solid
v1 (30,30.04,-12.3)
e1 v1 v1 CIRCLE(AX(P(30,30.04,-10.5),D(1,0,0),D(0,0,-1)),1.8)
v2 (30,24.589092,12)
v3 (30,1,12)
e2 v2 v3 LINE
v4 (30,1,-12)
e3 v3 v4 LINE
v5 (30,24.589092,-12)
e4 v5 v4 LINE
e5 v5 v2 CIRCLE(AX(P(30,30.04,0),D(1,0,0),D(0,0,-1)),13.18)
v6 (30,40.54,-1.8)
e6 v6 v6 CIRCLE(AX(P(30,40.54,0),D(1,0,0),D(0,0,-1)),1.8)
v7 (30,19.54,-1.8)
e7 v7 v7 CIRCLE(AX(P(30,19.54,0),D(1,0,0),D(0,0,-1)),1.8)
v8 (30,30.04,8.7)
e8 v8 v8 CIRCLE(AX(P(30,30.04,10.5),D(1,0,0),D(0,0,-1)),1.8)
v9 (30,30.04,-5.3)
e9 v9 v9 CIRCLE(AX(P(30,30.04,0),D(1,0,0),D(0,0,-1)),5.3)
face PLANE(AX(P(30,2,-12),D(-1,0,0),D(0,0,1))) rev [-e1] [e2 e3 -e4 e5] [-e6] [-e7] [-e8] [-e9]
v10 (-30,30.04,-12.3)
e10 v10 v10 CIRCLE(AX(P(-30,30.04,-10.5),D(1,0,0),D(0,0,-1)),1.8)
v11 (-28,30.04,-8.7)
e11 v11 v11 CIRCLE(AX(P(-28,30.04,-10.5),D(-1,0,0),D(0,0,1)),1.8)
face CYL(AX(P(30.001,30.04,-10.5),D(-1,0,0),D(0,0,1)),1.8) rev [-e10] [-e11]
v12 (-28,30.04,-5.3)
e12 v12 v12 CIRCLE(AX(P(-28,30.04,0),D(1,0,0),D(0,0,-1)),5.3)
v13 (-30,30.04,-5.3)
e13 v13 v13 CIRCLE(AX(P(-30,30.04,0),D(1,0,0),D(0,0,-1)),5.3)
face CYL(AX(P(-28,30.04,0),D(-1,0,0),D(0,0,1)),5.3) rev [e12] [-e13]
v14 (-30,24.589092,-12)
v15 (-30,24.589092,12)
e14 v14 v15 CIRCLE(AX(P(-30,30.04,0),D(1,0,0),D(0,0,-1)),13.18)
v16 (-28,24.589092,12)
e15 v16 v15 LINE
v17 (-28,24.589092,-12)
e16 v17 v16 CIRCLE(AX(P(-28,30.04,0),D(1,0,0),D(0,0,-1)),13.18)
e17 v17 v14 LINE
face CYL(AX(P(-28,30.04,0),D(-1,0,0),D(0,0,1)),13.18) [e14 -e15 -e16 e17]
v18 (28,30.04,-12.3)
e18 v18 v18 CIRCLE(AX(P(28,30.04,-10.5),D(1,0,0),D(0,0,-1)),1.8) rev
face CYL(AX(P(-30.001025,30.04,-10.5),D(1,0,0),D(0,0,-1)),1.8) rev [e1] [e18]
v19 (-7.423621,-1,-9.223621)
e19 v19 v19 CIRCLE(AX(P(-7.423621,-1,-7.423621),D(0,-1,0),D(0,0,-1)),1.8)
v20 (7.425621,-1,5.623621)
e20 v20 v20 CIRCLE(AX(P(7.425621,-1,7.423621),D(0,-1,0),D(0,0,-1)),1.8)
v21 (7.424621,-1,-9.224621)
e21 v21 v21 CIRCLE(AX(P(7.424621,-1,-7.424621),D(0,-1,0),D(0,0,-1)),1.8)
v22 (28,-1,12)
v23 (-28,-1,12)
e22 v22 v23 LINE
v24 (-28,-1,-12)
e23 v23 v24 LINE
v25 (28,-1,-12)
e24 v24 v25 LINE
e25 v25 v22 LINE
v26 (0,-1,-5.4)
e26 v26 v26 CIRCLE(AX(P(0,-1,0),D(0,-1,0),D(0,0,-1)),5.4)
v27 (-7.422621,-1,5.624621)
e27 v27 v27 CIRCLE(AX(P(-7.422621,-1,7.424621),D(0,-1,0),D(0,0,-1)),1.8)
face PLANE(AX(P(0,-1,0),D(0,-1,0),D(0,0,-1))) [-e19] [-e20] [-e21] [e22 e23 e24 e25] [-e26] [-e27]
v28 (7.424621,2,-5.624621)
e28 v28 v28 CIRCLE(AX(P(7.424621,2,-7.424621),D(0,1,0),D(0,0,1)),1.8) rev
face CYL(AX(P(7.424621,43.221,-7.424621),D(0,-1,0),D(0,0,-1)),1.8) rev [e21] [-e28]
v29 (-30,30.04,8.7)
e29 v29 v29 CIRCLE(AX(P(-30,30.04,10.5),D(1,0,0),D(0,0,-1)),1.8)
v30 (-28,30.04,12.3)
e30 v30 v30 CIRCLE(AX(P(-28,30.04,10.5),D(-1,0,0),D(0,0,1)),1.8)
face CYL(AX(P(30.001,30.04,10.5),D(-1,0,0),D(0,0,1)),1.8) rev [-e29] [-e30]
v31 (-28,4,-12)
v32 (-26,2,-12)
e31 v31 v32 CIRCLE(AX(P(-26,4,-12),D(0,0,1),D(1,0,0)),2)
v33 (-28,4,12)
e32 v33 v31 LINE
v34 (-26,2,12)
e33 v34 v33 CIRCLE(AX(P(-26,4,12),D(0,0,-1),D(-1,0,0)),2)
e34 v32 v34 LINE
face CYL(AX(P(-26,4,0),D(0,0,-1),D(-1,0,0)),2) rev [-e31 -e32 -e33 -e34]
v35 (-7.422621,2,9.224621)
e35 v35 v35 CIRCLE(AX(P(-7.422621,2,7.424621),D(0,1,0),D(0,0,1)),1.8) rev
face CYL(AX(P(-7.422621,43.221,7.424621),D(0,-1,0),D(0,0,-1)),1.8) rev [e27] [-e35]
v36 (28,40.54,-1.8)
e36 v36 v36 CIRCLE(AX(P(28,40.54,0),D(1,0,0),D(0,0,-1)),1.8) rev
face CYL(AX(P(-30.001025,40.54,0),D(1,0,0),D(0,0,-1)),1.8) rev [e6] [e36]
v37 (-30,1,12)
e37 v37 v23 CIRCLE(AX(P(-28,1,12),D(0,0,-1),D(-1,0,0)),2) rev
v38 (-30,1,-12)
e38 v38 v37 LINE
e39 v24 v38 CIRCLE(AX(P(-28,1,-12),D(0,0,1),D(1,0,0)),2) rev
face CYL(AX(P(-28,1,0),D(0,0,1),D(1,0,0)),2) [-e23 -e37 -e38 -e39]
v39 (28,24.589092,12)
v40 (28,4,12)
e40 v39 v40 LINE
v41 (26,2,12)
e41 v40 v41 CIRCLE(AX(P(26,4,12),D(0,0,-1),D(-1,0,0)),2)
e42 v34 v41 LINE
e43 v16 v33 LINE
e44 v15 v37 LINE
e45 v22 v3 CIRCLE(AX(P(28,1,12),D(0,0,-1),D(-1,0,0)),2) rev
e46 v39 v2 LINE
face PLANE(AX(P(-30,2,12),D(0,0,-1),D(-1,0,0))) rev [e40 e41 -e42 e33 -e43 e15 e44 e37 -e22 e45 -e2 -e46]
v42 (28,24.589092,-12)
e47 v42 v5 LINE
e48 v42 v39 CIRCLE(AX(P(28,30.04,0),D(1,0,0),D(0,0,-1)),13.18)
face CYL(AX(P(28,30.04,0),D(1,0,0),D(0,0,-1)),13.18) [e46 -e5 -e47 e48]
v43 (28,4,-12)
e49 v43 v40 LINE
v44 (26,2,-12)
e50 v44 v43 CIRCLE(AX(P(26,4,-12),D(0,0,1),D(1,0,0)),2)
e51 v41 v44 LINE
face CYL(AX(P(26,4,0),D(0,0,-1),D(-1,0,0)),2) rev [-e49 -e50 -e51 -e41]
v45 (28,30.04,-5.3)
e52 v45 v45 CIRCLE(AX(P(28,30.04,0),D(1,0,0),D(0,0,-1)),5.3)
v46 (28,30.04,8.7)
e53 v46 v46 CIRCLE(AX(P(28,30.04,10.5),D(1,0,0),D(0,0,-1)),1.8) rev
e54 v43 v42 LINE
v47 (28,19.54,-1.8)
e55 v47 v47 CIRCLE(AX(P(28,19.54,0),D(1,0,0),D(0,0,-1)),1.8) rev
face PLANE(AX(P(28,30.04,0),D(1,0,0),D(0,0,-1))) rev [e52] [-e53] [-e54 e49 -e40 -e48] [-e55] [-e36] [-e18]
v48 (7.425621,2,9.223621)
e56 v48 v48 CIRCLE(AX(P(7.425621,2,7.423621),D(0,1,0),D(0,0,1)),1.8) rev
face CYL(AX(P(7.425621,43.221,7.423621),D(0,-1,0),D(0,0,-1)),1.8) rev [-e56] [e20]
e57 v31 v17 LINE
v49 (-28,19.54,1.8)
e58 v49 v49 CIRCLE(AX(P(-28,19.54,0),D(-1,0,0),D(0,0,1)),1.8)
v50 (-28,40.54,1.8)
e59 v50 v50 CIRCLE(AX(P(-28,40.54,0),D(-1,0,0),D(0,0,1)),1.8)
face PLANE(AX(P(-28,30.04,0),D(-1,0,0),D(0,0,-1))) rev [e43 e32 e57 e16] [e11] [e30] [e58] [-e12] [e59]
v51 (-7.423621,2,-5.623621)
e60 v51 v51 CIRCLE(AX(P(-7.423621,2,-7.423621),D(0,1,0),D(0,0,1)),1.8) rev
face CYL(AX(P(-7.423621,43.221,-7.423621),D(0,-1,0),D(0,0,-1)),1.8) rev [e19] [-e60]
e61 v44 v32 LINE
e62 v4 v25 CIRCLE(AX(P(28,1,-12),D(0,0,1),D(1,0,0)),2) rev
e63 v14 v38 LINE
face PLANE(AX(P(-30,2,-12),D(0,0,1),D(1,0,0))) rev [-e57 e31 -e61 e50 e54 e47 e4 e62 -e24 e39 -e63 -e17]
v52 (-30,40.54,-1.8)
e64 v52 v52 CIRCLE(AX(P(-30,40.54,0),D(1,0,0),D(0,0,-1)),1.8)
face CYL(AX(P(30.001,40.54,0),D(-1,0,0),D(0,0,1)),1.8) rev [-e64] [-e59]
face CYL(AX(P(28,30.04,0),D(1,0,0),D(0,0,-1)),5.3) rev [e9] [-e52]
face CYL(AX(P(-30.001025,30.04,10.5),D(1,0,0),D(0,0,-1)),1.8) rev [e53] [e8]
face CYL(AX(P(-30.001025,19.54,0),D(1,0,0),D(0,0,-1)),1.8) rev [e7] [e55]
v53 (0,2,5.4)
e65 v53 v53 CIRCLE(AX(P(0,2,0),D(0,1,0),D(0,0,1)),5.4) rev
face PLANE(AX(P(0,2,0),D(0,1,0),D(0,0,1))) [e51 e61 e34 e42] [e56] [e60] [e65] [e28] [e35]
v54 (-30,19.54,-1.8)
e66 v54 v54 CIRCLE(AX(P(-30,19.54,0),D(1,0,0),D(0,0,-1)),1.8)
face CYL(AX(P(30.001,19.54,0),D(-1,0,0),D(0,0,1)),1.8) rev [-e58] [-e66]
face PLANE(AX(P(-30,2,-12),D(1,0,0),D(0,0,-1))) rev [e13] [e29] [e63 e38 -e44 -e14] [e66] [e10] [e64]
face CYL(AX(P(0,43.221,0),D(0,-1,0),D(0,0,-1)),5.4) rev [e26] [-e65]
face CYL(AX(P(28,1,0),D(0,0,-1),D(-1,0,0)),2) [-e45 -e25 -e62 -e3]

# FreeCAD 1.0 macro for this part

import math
import FreeCAD as App
import Part
import Sketcher


def edges_at(feature, points):
    """Names of the edges that pass closest to the given points."""
    edges = feature.Shape.Edges
    near = lambda p: min(range(len(edges)), key=lambda i: edges[i].distToShape(Part.Vertex(*p))[0])
    return sorted({f"Edge{near(p) + 1}" for p in points})

doc = App.newDocument("Part")
body = doc.addObject("PartDesign::Body", "Body")

# Sketch on XZ plane
sketch1 = doc.addObject("Sketcher::SketchObject", "Sketch")
body.addObject(sketch1)
sketch1.AttachmentSupport = (doc.XZ_Plane, [""])
sketch1.MapMode = "FlatFace"
sketch1.addGeometry([
    Part.LineSegment(App.Vector(-30, -12, 0), App.Vector(-30, 12, 0)),
    Part.LineSegment(App.Vector(-30, 12, 0), App.Vector(30, 12, 0)),
    Part.LineSegment(App.Vector(30, 12, 0), App.Vector(30, -12, 0)),
    Part.LineSegment(App.Vector(30, -12, 0), App.Vector(-30, -12, 0)),
], False)
sketch1.addConstraint([
    Sketcher.Constraint("Coincident", 0, 2, 1, 1),
    Sketcher.Constraint("Coincident", 1, 2, 2, 1),
    Sketcher.Constraint("Coincident", 2, 2, 3, 1),
    Sketcher.Constraint("Coincident", 3, 2, 0, 1),
    Sketcher.Constraint("Vertical", 0),
    Sketcher.Constraint("Horizontal", 1),
    Sketcher.Constraint("Vertical", 2),
    Sketcher.Constraint("Horizontal", 3),
    Sketcher.Constraint("Symmetric", 0, 2, 2, 2, -1, 1),
    Sketcher.Constraint("DistanceX", 1, 1, 1, 2, 60.0),
    Sketcher.Constraint("DistanceY", 0, 1, 0, 2, 24.0),
])
pad1 = doc.addObject("PartDesign::Pad", "Pad")
body.addObject(pad1)
pad1.Profile = sketch1
pad1.Length = 2
pad1.Reversed = True

# Sketch on YZ plane
sketch2 = doc.addObject("Sketcher::SketchObject", "Sketch001")
body.addObject(sketch2)
sketch2.AttachmentSupport = (doc.YZ_Plane, [""])
sketch2.MapMode = "FlatFace"
sketch2.AttachmentOffset = App.Placement(App.Vector(0, 0, 30), App.Rotation())
sketch2.addGeometry([
    Part.LineSegment(App.Vector(2, 12, 0), App.Vector(2, -12, 0)),  # 0
    Part.LineSegment(App.Vector(2, -12, 0), App.Vector(25, -12, 0)),  # 1
    Part.ArcOfCircle(Part.Circle(App.Vector(30, 0, 0), App.Vector(0, 0, 1), 13), math.radians(-114), math.radians(114)),  # 2
    Part.LineSegment(App.Vector(25, 12, 0), App.Vector(2, 12, 0)),  # 3
    Part.Circle(App.Vector(30, 0, 0), App.Vector(0, 0, 1), 5),  # 4
], False)
sketch2.addConstraint([
    Sketcher.Constraint("Coincident", 0, 2, 1, 1),
    Sketcher.Constraint("Coincident", 1, 2, 2, 1),
    Sketcher.Constraint("Coincident", 2, 2, 3, 1),
    Sketcher.Constraint("Coincident", 3, 2, 0, 1),
    Sketcher.Constraint("Vertical", 0),
    Sketcher.Constraint("Horizontal", 1),
    Sketcher.Constraint("Horizontal", 3),
    Sketcher.Constraint("Coincident", 4, 3, 2, 3),
    Sketcher.Constraint("Symmetric", 1, 2, 2, 2, -1),
    Sketcher.Constraint("Diameter", 4, 10.6),
    Sketcher.Constraint("DistanceY", 0, 2, 0, 1, 24.0),
    Sketcher.Constraint("Radius", 2, 13.18),
    Sketcher.Constraint("DistanceX", -1, 1, 0, 2, 2.0),
    Sketcher.Constraint("DistanceX", -1, 1, 2, 3, 30.04),
])
pad2 = doc.addObject("PartDesign::Pad", "Pad001")
body.addObject(pad2)
pad2.Profile = sketch2
pad2.Length = 2
pad2.Reversed = True

# Sketch on YZ plane
sketch3 = doc.addObject("Sketcher::SketchObject", "Sketch002")
body.addObject(sketch3)
sketch3.AttachmentSupport = (doc.YZ_Plane, [""])
sketch3.MapMode = "FlatFace"
sketch3.AttachmentOffset = App.Placement(App.Vector(0, 0, 30), App.Rotation())
sketch3.addGeometry([
    Part.Circle(App.Vector(40.5, 0, 0), App.Vector(0, 0, 1), 1.8),
    Part.Circle(App.Vector(30, -10.5, 0), App.Vector(0, 0, 1), 1.8),
    Part.Circle(App.Vector(19.5, 0, 0), App.Vector(0, 0, 1), 1.8),
    Part.Circle(App.Vector(30, 10.5, 0), App.Vector(0, 0, 1), 1.8),
], False)
sketch3.addConstraint([
    Sketcher.Constraint("Equal", 0, 1),
    Sketcher.Constraint("Equal", 1, 2),
    Sketcher.Constraint("Equal", 2, 3),
    Sketcher.Constraint("Symmetric", 1, 3, 3, 3, -1),
    Sketcher.Constraint("PointOnObject", 0, 3, -1),
    Sketcher.Constraint("PointOnObject", 2, 3, -1),
    Sketcher.Constraint("Diameter", 0, 3.6),
    Sketcher.Constraint("DistanceX", 2, 3, 0, 3, 21.0),
    Sketcher.Constraint("DistanceY", 1, 3, 3, 3, 21.0),
    Sketcher.Constraint("DistanceX", 1, 3, 0, 3, 10.5),
    Sketcher.Constraint("DistanceX", -1, 1, 0, 3, 40.54),
])
pocket1 = doc.addObject("PartDesign::Pocket", "Pocket")
body.addObject(pocket1)
pocket1.Profile = sketch3
pocket1.Length = 2
doc.recompute()

mirrored = doc.addObject("PartDesign::Mirrored", "Mirrored")
body.addObject(mirrored)
mirrored.Originals = [pad2, pocket1]
mirrored.MirrorPlane = (doc.YZ_Plane, [""])
body.Tip = mirrored

# Sketch on XZ plane
sketch4 = doc.addObject("Sketcher::SketchObject", "Sketch003")
body.addObject(sketch4)
sketch4.AttachmentSupport = (doc.XZ_Plane, [""])
sketch4.MapMode = "FlatFace"
sketch4.addGeometry([
    Part.LineSegment(App.Vector(-30, 12, 0), App.Vector(-30, -12, 0)),
    Part.LineSegment(App.Vector(-30, -12, 0), App.Vector(30, -12, 0)),
    Part.LineSegment(App.Vector(30, -12, 0), App.Vector(30, 12, 0)),
    Part.LineSegment(App.Vector(30, 12, 0), App.Vector(-30, 12, 0)),
], False)
sketch4.addConstraint([
    Sketcher.Constraint("Coincident", 0, 2, 1, 1),
    Sketcher.Constraint("Coincident", 1, 2, 2, 1),
    Sketcher.Constraint("Coincident", 2, 2, 3, 1),
    Sketcher.Constraint("Coincident", 3, 2, 0, 1),
    Sketcher.Constraint("Vertical", 0),
    Sketcher.Constraint("Horizontal", 1),
    Sketcher.Constraint("Vertical", 2),
    Sketcher.Constraint("Horizontal", 3),
    Sketcher.Constraint("Symmetric", 0, 2, 2, 2, -1, 1),
    Sketcher.Constraint("DistanceX", 1, 1, 1, 2, 60.0),
    Sketcher.Constraint("DistanceY", 0, 2, 0, 1, 24.0),
])
pad3 = doc.addObject("PartDesign::Pad", "Pad002")
body.addObject(pad3)
pad3.Profile = sketch4
pad3.Length = 1

# Sketch on XZ plane
sketch5 = doc.addObject("Sketcher::SketchObject", "Sketch004")
body.addObject(sketch5)
sketch5.AttachmentSupport = (doc.XZ_Plane, [""])
sketch5.MapMode = "FlatFace"
sketch5.AttachmentOffset = App.Placement(App.Vector(0, 0, 1), App.Rotation())
sketch5.addGeometry(Part.Circle(App.Vector(0, 0, 0), App.Vector(0, 0, 1), 5), False)
sketch5.addConstraint([
    Sketcher.Constraint("Coincident", 0, 3, -1, 1),
    Sketcher.Constraint("Diameter", 0, 10.8),
])
pocket2 = doc.addObject("PartDesign::Pocket", "Pocket001")
body.addObject(pocket2)
pocket2.Profile = sketch5
pocket2.Type = "UpToFirst"

# Sketch on XZ plane
sketch6 = doc.addObject("Sketcher::SketchObject", "Sketch005")
body.addObject(sketch6)
sketch6.AttachmentSupport = (doc.XZ_Plane, [""])
sketch6.MapMode = "FlatFace"
sketch6.AttachmentOffset = App.Placement(App.Vector(0, 0, 1), App.Rotation())
sketch6.addGeometry(Part.Circle(App.Vector(7.4, -7.4, 0), App.Vector(0, 0, 1), 1.8), False)
sketch6.addConstraint([
    Sketcher.Constraint("Diameter", 0, 3.6),
    Sketcher.Constraint("DistanceX", -1, 1, 0, 3, 7.424621),
    Sketcher.Constraint("DistanceY", 0, 3, -1, 1, 7.424621),
])
pocket3 = doc.addObject("PartDesign::Pocket", "Pocket002")
body.addObject(pocket3)
pocket3.Profile = sketch6
pocket3.Type = "UpToFirst"

# Sketch on XZ plane
sketch7 = doc.addObject("Sketcher::SketchObject", "Sketch006")
body.addObject(sketch7)
sketch7.AttachmentSupport = (doc.XZ_Plane, [""])
sketch7.MapMode = "FlatFace"
sketch7.AttachmentOffset = App.Placement(App.Vector(0, 0, 1), App.Rotation())
sketch7.addGeometry(Part.Circle(App.Vector(-7.4, -7.4, 0), App.Vector(0, 0, 1), 1.8), False)
sketch7.addConstraint([
    Sketcher.Constraint("Diameter", 0, 3.6),
    Sketcher.Constraint("DistanceX", 0, 3, -1, 1, 7.423621),
    Sketcher.Constraint("DistanceY", 0, 3, -1, 1, 7.423621),
])
pocket4 = doc.addObject("PartDesign::Pocket", "Pocket003")
body.addObject(pocket4)
pocket4.Profile = sketch7
pocket4.Type = "UpToFirst"

# Sketch on XZ plane
sketch8 = doc.addObject("Sketcher::SketchObject", "Sketch007")
body.addObject(sketch8)
sketch8.AttachmentSupport = (doc.XZ_Plane, [""])
sketch8.MapMode = "FlatFace"
sketch8.AttachmentOffset = App.Placement(App.Vector(0, 0, 1), App.Rotation())
sketch8.addGeometry(Part.Circle(App.Vector(-7.4, 7.4, 0), App.Vector(0, 0, 1), 1.8), False)
sketch8.addConstraint([
    Sketcher.Constraint("Diameter", 0, 3.6),
    Sketcher.Constraint("DistanceX", 0, 3, -1, 1, 7.422621),
    Sketcher.Constraint("DistanceY", -1, 1, 0, 3, 7.424621),
])
pocket5 = doc.addObject("PartDesign::Pocket", "Pocket004")
body.addObject(pocket5)
pocket5.Profile = sketch8
pocket5.Type = "UpToFirst"

# Sketch on XZ plane
sketch9 = doc.addObject("Sketcher::SketchObject", "Sketch008")
body.addObject(sketch9)
sketch9.AttachmentSupport = (doc.XZ_Plane, [""])
sketch9.MapMode = "FlatFace"
sketch9.AttachmentOffset = App.Placement(App.Vector(0, 0, 1), App.Rotation())
sketch9.addGeometry(Part.Circle(App.Vector(7.4, 7.4, 0), App.Vector(0, 0, 1), 1.8), False)
sketch9.addConstraint([
    Sketcher.Constraint("Diameter", 0, 3.6),
    Sketcher.Constraint("DistanceX", -1, 1, 0, 3, 7.425621),
    Sketcher.Constraint("DistanceY", -1, 1, 0, 3, 7.423621),
])
pocket6 = doc.addObject("PartDesign::Pocket", "Pocket005")
body.addObject(pocket6)
pocket6.Profile = sketch9
pocket6.Type = "UpToFirst"
doc.recompute()

fillet = doc.addObject("PartDesign::Fillet", "Fillet")
body.addObject(fillet)
fillet.Base = (pocket6, edges_at(pocket6, [
    (-28, 2, 0),
    (28, 2, 0),
    (-30, -1, 0),
    (30, -1, 0),
]))
fillet.Radius = 2

doc.recompute()
